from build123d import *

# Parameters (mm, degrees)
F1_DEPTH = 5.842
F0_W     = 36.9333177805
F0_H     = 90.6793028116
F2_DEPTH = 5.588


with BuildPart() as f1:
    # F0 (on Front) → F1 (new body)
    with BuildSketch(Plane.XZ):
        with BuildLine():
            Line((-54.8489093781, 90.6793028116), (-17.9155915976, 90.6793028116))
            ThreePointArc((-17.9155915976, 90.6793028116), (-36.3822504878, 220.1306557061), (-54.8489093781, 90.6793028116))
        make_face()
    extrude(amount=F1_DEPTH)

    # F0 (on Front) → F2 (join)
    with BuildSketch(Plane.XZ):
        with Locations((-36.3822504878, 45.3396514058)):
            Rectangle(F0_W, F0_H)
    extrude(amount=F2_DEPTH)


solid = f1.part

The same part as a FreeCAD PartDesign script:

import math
import FreeCAD as App
import Part
import Sketcher
from FreeCAD import Vector


def add_polygon(sketch, points):
    """Adds a closed chain of lines whose ends are joined by coincident constraints."""
    first, n = sketch.GeometryCount, len(points)
    for a, b in zip(points, points[1:] + points[:1]):
        sketch.addGeometry(Part.LineSegment(App.Vector(*a, 0), App.Vector(*b, 0)), False)
    for i in range(n):
        sketch.addConstraint(Sketcher.Constraint("Coincident", first + i, 2, first + (i + 1) % n, 1))

doc = App.newDocument("Part")
params = doc.addObject("Spreadsheet::Sheet", "Params")
for row, (alias, value) in enumerate([
    ("pad1_length", "0.23 in"),
    ("pad2_length", "0.22 in"),
], start=1):
    params.set(f"A{row}", alias)
    params.set(f"B{row}", "=" + value)
    params.setAlias(f"B{row}", alias)

body = doc.addObject("PartDesign::Body", "Body")

# Sketch on XZ plane
sketch1 = doc.addObject("Sketcher::SketchObject", "Sketch")
body.addObject(sketch1)
sketch1.AttachmentSupport = (doc.XZ_Plane, [""])
sketch1.MapMode = "FlatFace"
sketch1.addGeometry(Part.LineSegment(Vector(-55, 91, 0), Vector(-18, 91, 0)), False)
sketch1.addGeometry(Part.ArcOfCircle(Part.Circle(Vector(-36, 154, 0), Vector(0, 0, 1), 66), math.radians(-74), math.radians(254)), False)
sketch1.addConstraint(Sketcher.Constraint("Coincident", 0, 1, 1, 2))
sketch1.addConstraint(Sketcher.Constraint("Coincident", 1, 1, 0, 2))
sketch1.addConstraint(Sketcher.Constraint("Horizontal", 0))
sketch1.addConstraint(Sketcher.Constraint("Radius", 1, 66.042841))
sketch1.addConstraint(Sketcher.Constraint("DistanceX", 0, 1, 0, 2, 36.933318))
sketch1.addConstraint(Sketcher.Constraint("DistanceX", 1, 3, -1, 1, 36.38225))
sketch1.addConstraint(Sketcher.Constraint("DistanceY", -1, 1, 1, 3, 154.087815))
pad1 = doc.addObject("PartDesign::Pad", "Pad")
body.addObject(pad1)
pad1.Profile = sketch1
pad1.setExpression("Length", "Params.pad1_length")

# Sketch on XZ plane
sketch2 = doc.addObject("Sketcher::SketchObject", "Sketch001")
body.addObject(sketch2)
sketch2.AttachmentSupport = (doc.XZ_Plane, [""])
sketch2.MapMode = "FlatFace"
add_polygon(sketch2, [(-55, 91), (-55, 0), (-18, 0), (-18, 91)])  # lines 0-3
sketch2.addConstraint(Sketcher.Constraint("Vertical", 0))
sketch2.addConstraint(Sketcher.Constraint("Horizontal", 1))
sketch2.addConstraint(Sketcher.Constraint("Vertical", 2))
sketch2.addConstraint(Sketcher.Constraint("Horizontal", 3))
sketch2.addConstraint(Sketcher.Constraint("PointOnObject", 0, 2, -1))
sketch2.addConstraint(Sketcher.Constraint("DistanceX", 1, 1, 1, 2, 36.933318))
sketch2.addConstraint(Sketcher.Constraint("DistanceY", 0, 2, 0, 1, 90.679303))
sketch2.addConstraint(Sketcher.Constraint("DistanceX", 0, 2, -1, 1, 54.848909))
pad2 = doc.addObject("PartDesign::Pad", "Pad001")
body.addObject(pad2)
pad2.Profile = sketch2
pad2.setExpression("Length", "Params.pad2_length")

doc.recompute()
